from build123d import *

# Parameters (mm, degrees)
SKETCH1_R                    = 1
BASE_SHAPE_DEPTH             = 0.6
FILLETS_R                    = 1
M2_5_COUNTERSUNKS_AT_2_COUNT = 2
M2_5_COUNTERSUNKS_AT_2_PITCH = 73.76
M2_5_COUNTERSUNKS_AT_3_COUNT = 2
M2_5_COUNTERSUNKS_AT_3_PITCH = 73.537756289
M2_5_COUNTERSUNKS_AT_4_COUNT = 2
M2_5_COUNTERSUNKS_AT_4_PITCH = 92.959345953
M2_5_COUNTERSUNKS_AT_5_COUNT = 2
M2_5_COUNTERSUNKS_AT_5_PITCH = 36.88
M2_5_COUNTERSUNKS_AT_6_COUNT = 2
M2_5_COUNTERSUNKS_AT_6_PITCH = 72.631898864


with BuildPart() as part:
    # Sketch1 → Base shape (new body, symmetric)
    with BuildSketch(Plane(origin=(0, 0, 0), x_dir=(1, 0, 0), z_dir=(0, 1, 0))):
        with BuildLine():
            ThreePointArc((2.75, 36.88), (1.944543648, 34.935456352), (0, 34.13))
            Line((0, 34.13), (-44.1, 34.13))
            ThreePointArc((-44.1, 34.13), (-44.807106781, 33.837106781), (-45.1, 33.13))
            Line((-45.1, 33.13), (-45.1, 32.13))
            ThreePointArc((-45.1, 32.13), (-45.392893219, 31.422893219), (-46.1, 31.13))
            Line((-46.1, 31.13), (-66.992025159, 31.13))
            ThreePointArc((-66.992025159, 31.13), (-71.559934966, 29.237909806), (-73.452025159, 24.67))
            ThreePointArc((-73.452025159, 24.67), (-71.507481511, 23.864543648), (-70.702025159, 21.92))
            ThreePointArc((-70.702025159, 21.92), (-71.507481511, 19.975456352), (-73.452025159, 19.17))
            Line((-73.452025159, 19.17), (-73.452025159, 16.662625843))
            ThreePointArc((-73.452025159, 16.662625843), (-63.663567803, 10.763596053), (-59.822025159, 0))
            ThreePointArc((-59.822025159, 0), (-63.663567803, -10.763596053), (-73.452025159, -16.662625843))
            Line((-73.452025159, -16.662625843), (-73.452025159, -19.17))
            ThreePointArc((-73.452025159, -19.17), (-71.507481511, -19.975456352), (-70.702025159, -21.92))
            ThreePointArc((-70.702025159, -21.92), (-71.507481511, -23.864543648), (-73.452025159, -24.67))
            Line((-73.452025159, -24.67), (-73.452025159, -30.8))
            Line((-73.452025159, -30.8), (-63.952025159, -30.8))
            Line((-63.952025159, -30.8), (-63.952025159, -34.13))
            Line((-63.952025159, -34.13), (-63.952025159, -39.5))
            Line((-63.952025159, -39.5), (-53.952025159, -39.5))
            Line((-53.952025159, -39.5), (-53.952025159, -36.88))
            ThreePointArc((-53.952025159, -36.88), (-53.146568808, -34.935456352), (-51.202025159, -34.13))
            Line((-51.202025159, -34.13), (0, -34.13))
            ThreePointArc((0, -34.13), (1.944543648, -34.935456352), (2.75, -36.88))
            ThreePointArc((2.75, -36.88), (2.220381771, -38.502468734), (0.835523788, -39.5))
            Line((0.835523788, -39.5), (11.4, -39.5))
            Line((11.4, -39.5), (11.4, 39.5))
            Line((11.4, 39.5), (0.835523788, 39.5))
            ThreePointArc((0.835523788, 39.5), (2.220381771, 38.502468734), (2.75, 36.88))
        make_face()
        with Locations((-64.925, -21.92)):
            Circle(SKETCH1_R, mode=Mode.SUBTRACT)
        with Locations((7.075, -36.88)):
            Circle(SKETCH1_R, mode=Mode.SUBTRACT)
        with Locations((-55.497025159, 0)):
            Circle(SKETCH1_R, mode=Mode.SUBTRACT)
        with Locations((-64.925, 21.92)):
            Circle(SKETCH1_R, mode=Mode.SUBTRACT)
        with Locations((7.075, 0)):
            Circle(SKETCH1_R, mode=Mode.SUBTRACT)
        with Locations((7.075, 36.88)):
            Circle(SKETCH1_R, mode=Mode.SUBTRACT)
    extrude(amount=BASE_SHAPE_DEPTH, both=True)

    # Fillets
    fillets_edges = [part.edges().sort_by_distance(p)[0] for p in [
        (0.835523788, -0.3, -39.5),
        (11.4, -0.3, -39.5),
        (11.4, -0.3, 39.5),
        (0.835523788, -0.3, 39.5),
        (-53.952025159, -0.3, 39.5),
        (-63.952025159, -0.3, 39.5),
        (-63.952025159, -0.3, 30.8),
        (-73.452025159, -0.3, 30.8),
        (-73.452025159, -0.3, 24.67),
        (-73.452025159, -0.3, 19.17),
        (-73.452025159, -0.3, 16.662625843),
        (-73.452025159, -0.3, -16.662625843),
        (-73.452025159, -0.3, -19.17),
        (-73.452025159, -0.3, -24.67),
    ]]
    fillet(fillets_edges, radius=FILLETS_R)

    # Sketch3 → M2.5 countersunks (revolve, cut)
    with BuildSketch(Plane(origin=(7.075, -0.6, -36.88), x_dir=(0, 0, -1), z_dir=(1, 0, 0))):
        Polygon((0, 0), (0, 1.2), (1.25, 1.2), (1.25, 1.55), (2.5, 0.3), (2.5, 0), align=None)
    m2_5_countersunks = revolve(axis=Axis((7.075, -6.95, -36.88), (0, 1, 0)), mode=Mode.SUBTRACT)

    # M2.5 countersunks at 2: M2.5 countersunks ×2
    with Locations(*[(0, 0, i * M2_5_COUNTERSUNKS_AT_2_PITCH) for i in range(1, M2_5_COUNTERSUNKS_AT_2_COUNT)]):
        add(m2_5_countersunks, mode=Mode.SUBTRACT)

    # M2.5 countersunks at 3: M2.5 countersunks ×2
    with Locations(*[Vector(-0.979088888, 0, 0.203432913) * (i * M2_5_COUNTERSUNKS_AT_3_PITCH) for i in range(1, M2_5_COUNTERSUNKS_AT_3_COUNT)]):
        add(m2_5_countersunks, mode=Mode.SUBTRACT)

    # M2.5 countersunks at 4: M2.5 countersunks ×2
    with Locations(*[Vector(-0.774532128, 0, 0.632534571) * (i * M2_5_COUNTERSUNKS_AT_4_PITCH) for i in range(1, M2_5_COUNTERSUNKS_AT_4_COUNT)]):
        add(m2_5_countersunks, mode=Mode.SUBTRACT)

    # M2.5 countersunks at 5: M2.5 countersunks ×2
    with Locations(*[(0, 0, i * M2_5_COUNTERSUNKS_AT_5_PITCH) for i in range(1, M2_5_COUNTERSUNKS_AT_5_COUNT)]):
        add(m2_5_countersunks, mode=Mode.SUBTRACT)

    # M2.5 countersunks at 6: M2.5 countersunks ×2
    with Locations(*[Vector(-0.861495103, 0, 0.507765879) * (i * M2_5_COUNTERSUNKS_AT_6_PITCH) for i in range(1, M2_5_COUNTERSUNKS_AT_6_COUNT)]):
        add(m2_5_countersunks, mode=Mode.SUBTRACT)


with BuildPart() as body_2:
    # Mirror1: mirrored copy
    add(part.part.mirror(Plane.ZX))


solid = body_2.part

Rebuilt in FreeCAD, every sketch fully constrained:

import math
import FreeCAD as App
import Part
import Sketcher
Q = App.Units.Quantity


def edges_at(feature, points):
    """Names of the edges that pass closest to the given points."""
    edges = feature.Shape.Edges
    near = lambda p: min(range(len(edges)), key=lambda i: edges[i].distToShape(Part.Vertex(*p))[0])
    return sorted({f"Edge{near(p) + 1}" for p in points})

doc = App.newDocument("Part")
body = doc.addObject("PartDesign::Body", "Body")

# Sketch on XZ plane
sketch1 = body.newObject("Sketcher::SketchObject", "Sketch")
sketch1.AttachmentSupport = (doc.getObject("XZ_Plane"), [""])
sketch1.MapMode = "FlatFace"
sketch1.addGeometry(Part.ArcOfCircle(Part.Circle(App.Vector(0, -36.9, 0), App.Vector(0, 0, 1), 2.8), math.radians(0), math.radians(90)), False)
sketch1.addGeometry(Part.LineSegment(App.Vector(0, -34.1, 0), App.Vector(-44.1, -34.1, 0)), False)
sketch1.addGeometry(Part.ArcOfCircle(Part.Circle(App.Vector(-44.1, -33.1, 0), App.Vector(0, 0, 1), 1), math.radians(-180), math.radians(-90)), False)
sketch1.addGeometry(Part.LineSegment(App.Vector(-45.1, -33.1, 0), App.Vector(-45.1, -32.1, 0)), False)
sketch1.addGeometry(Part.ArcOfCircle(Part.Circle(App.Vector(-46.1, -32.1, 0), App.Vector(0, 0, 1), 1), math.radians(0), math.radians(90)), False)
sketch1.addGeometry(Part.LineSegment(App.Vector(-46.1, -31.1, 0), App.Vector(-67, -31.1, 0)), False)
sketch1.addGeometry(Part.ArcOfCircle(Part.Circle(App.Vector(-67, -24.7, 0), App.Vector(0, 0, 1), 6.5), math.radians(180), math.radians(270)), False)
sketch1.addGeometry(Part.ArcOfCircle(Part.Circle(App.Vector(-73.5, -21.9, 0), App.Vector(0, 0, 1), 2.8), math.radians(-90), math.radians(0)), False)
sketch1.addGeometry(Part.ArcOfCircle(Part.Circle(App.Vector(-73.5, -21.9, 0), App.Vector(0, 0, 1), 2.8), math.radians(0), math.radians(90)), False)
sketch1.addGeometry(Part.LineSegment(App.Vector(-73.5, -19.2, 0), App.Vector(-73.5, -16.7, 0)), False)
sketch1.addGeometry(Part.ArcOfCircle(Part.Circle(App.Vector(-76.8, 0, 0), App.Vector(0, 0, 1), 17), math.radians(-79), math.radians(0)), False)
sketch1.addGeometry(Part.ArcOfCircle(Part.Circle(App.Vector(-76.8, 0, 0), App.Vector(0, 0, 1), 17), math.radians(0), math.radians(79)), False)
sketch1.addGeometry(Part.LineSegment(App.Vector(-73.5, 16.7, 0), App.Vector(-73.5, 19.2, 0)), False)
sketch1.addGeometry(Part.ArcOfCircle(Part.Circle(App.Vector(-73.5, 21.9, 0), App.Vector(0, 0, 1), 2.8), math.radians(-90), math.radians(0)), False)
sketch1.addGeometry(Part.ArcOfCircle(Part.Circle(App.Vector(-73.5, 21.9, 0), App.Vector(0, 0, 1), 2.8), math.radians(0), math.radians(90)), False)
sketch1.addGeometry(Part.LineSegment(App.Vector(-73.5, 24.7, 0), App.Vector(-73.5, 30.8, 0)), False)
sketch1.addGeometry(Part.LineSegment(App.Vector(-73.5, 30.8, 0), App.Vector(-64, 30.8, 0)), False)
sketch1.addGeometry(Part.LineSegment(App.Vector(-64, 30.8, 0), App.Vector(-64, 39.5, 0)), False)
sketch1.addGeometry(Part.LineSegment(App.Vector(-64, 39.5, 0), App.Vector(-54, 39.5, 0)), False)
sketch1.addGeometry(Part.LineSegment(App.Vector(-54, 39.5, 0), App.Vector(-54, 36.9, 0)), False)
sketch1.addGeometry(Part.ArcOfCircle(Part.Circle(App.Vector(-51.2, 36.9, 0), App.Vector(0, 0, 1), 2.7), math.radians(180), math.radians(270)), False)
sketch1.addGeometry(Part.LineSegment(App.Vector(-51.2, 34.1, 0), App.Vector(0, 34.1, 0)), False)
sketch1.addGeometry(Part.ArcOfCircle(Part.Circle(App.Vector(0, 36.9, 0), App.Vector(0, 0, 1), 2.8), math.radians(-90), math.radians(0)), False)
sketch1.addGeometry(Part.ArcOfCircle(Part.Circle(App.Vector(0, 36.9, 0), App.Vector(0, 0, 1), 2.7), math.radians(0), math.radians(72)), False)
sketch1.addGeometry(Part.LineSegment(App.Vector(0.8, 39.5, 0), App.Vector(11.4, 39.5, 0)), False)
sketch1.addGeometry(Part.LineSegment(App.Vector(11.4, 39.5, 0), App.Vector(11.4, -39.5, 0)), False)
sketch1.addGeometry(Part.LineSegment(App.Vector(11.4, -39.5, 0), App.Vector(0.8, -39.5, 0)), False)
sketch1.addGeometry(Part.ArcOfCircle(Part.Circle(App.Vector(0, -36.9, 0), App.Vector(0, 0, 1), 2.7), math.radians(-72), math.radians(0)), False)
sketch1.addGeometry(Part.Circle(App.Vector(-64.9, 21.9, 0), App.Vector(0, 0, 1), 1), False)
sketch1.addGeometry(Part.Circle(App.Vector(7.1, 36.9, 0), App.Vector(0, 0, 1), 1), False)
sketch1.addGeometry(Part.Circle(App.Vector(-55.5, 0, 0), App.Vector(0, 0, 1), 1), False)
sketch1.addGeometry(Part.Circle(App.Vector(-64.9, -21.9, 0), App.Vector(0, 0, 1), 1), False)
sketch1.addGeometry(Part.Circle(App.Vector(7.1, 0, 0), App.Vector(0, 0, 1), 1), False)
sketch1.addGeometry(Part.Circle(App.Vector(7.1, -36.9, 0), App.Vector(0, 0, 1), 1), False)
sketch1.addConstraint(Sketcher.Constraint("Tangent", 0, 2, 1, 1))
sketch1.addConstraint(Sketcher.Constraint("Tangent", 1, 2, 2, 2))
sketch1.addConstraint(Sketcher.Constraint("Tangent", 2, 1, 3, 1))
sketch1.addConstraint(Sketcher.Constraint("Tangent", 3, 2, 4, 1))
sketch1.addConstraint(Sketcher.Constraint("Tangent", 4, 2, 5, 1))
sketch1.addConstraint(Sketcher.Constraint("Tangent", 5, 2, 6, 2))
sketch1.addConstraint(Sketcher.Constraint("Coincident", 6, 1, 7, 1))
sketch1.addConstraint(Sketcher.Constraint("Tangent", 7, 2, 8, 1))
sketch1.addConstraint(Sketcher.Constraint("Coincident", 8, 2, 9, 1))
sketch1.addConstraint(Sketcher.Constraint("Coincident", 9, 2, 10, 1))
sketch1.addConstraint(Sketcher.Constraint("Tangent", 10, 2, 11, 1))
sketch1.addConstraint(Sketcher.Constraint("Coincident", 11, 2, 12, 1))
sketch1.addConstraint(Sketcher.Constraint("Coincident", 12, 2, 13, 1))
sketch1.addConstraint(Sketcher.Constraint("Tangent", 13, 2, 14, 1))
sketch1.addConstraint(Sketcher.Constraint("Coincident", 14, 2, 15, 1))
sketch1.addConstraint(Sketcher.Constraint("Coincident", 15, 2, 16, 1))
sketch1.addConstraint(Sketcher.Constraint("Coincident", 16, 2, 17, 1))
sketch1.addConstraint(Sketcher.Constraint("Coincident", 17, 2, 18, 1))
sketch1.addConstraint(Sketcher.Constraint("Coincident", 18, 2, 19, 1))
sketch1.addConstraint(Sketcher.Constraint("Tangent", 19, 2, 20, 1))
sketch1.addConstraint(Sketcher.Constraint("Tangent", 20, 2, 21, 1))
sketch1.addConstraint(Sketcher.Constraint("Tangent", 21, 2, 22, 1))
sketch1.addConstraint(Sketcher.Constraint("Tangent", 22, 2, 23, 1))
sketch1.addConstraint(Sketcher.Constraint("Coincident", 23, 2, 24, 1))
sketch1.addConstraint(Sketcher.Constraint("Coincident", 24, 2, 25, 1))
sketch1.addConstraint(Sketcher.Constraint("Coincident", 25, 2, 26, 1))
sketch1.addConstraint(Sketcher.Constraint("Coincident", 26, 2, 27, 1))
sketch1.addConstraint(Sketcher.Constraint("Tangent", 27, 2, 0, 1))
sketch1.addConstraint(Sketcher.Constraint("Horizontal", 1))
sketch1.addConstraint(Sketcher.Constraint("Vertical", 3))
sketch1.addConstraint(Sketcher.Constraint("Horizontal", 5))
sketch1.addConstraint(Sketcher.Constraint("Vertical", 9))
sketch1.addConstraint(Sketcher.Constraint("Vertical", 12))
sketch1.addConstraint(Sketcher.Constraint("Vertical", 15))
sketch1.addConstraint(Sketcher.Constraint("Horizontal", 16))
sketch1.addConstraint(Sketcher.Constraint("Vertical", 17))
sketch1.addConstraint(Sketcher.Constraint("Horizontal", 18))
sketch1.addConstraint(Sketcher.Constraint("Vertical", 19))
sketch1.addConstraint(Sketcher.Constraint("Horizontal", 21))
sketch1.addConstraint(Sketcher.Constraint("Horizontal", 24))
sketch1.addConstraint(Sketcher.Constraint("Vertical", 25))
sketch1.addConstraint(Sketcher.Constraint("Horizontal", 26))
sketch1.addConstraint(Sketcher.Constraint("Equal", 2, 4))
sketch1.addConstraint(Sketcher.Constraint("Equal", 0, 7))
sketch1.addConstraint(Sketcher.Constraint("Equal", 7, 8))
sketch1.addConstraint(Sketcher.Constraint("Equal", 10, 11))
sketch1.addConstraint(Sketcher.Constraint("Equal", 8, 13))
sketch1.addConstraint(Sketcher.Constraint("Equal", 13, 14))
sketch1.addConstraint(Sketcher.Constraint("Equal", 14, 20))
sketch1.addConstraint(Sketcher.Constraint("Equal", 20, 22))
sketch1.addConstraint(Sketcher.Constraint("Equal", 22, 23))
sketch1.addConstraint(Sketcher.Constraint("Equal", 23, 27))
sketch1.addConstraint(Sketcher.Constraint("Equal", 4, 28))
sketch1.addConstraint(Sketcher.Constraint("Equal", 28, 29))
sketch1.addConstraint(Sketcher.Constraint("Equal", 29, 30))
sketch1.addConstraint(Sketcher.Constraint("Equal", 30, 31))
sketch1.addConstraint(Sketcher.Constraint("Equal", 31, 32))
sketch1.addConstraint(Sketcher.Constraint("Equal", 32, 33))
sketch1.addConstraint(Sketcher.Constraint("Symmetric", 0, 3, 22, 3, -1, 1))
sketch1.addConstraint(Sketcher.Constraint("Symmetric", 7, 3, 13, 3, -1))
sketch1.addConstraint(Sketcher.Constraint("Symmetric", 28, 3, 31, 3, -1))
sketch1.addConstraint(Sketcher.Constraint("Symmetric", 29, 3, 33, 3, -1))
sketch1.addConstraint(Sketcher.Constraint("Symmetric", 9, 2, 11, 2, -1))
sketch1.addConstraint(Sketcher.Constraint("Symmetric", 23, 2, 26, 2, -1))
sketch1.addConstraint(Sketcher.Constraint("PointOnObject", 30, 3, -1))
sketch1.addConstraint(Sketcher.Constraint("PointOnObject", 32, 3, -1))
sketch1.addConstraint(Sketcher.Constraint("PointOnObject", 10, 2, -1))
sketch1.addConstraint(Sketcher.Constraint("Horizontal", 14, 3, 28, 3))
sketch1.addConstraint(Sketcher.Constraint("Horizontal", 23, 3, 29, 3))
sketch1.addConstraint(Sketcher.Constraint("Horizontal", 31, 3, 7, 2))
sketch1.addConstraint(Sketcher.Constraint("Horizontal", 28, 3, 13, 2))
sketch1.addConstraint(Sketcher.Constraint("Horizontal", 19, 2, 22, 2))
sketch1.addConstraint(Sketcher.Constraint("Horizontal", 18, 2, 23, 2))
sketch1.addConstraint(Sketcher.Constraint("Horizontal", 33, 3, 27, 2))
sketch1.addConstraint(Sketcher.Constraint("Vertical", 29, 3, 32, 3))
sketch1.addConstraint(Sketcher.Constraint("Vertical", 14, 3, 6, 1))
sketch1.addConstraint(Sketcher.Constraint("Vertical", 6, 1, 8, 2))
sketch1.addConstraint(Sketcher.Constraint("Vertical", 12, 2, 14, 2))
sketch1.addConstraint(Sketcher.Constraint("Diameter", 28, 2.0))
sketch1.addConstraint(Sketcher.Constraint("Radius", 10, 17.0))
sketch1.addConstraint(Sketcher.Constraint("DistanceX", 18, 1, 18, 2, 10.0))
sketch1.addConstraint(Sketcher.Constraint("DistanceY", 3, 1, 3, 2, 1.0))
sketch1.addConstraint(Sketcher.Constraint("DistanceY", 25, 2, 25, 1, 79.0))
sketch1.addConstraint(Sketcher.Constraint("Radius", 0, 2.75))
sketch1.addConstraint(Sketcher.Constraint("Radius", 6, 6.46))
sketch1.addConstraint(Sketcher.Constraint("DistanceX", 1, 2, 1, 1, 44.1))
sketch1.addConstraint(Sketcher.Constraint("DistanceX", 16, 1, 16, 2, 9.5))
sketch1.addConstraint(Sketcher.Constraint("DistanceY", 17, 1, 17, 2, 8.7))
sketch1.addConstraint(Sketcher.Constraint("DistanceX", 28, 3, 29, 3, 72.0))
sketch1.addConstraint(Sketcher.Constraint("DistanceY", 15, 1, 15, 2, 6.13))
sketch1.addConstraint(Sketcher.Constraint("DistanceY", 19, 2, 19, 1, 2.62))
sketch1.addConstraint(Sketcher.Constraint("DistanceX", -1, 1, 24, 2, 11.4))
sketch1.addConstraint(Sketcher.Constraint("DistanceX", 10, 3, 7, 3, 3.37))
sketch1.addConstraint(Sketcher.Constraint("DistanceX", 28, 3, -1, 1, 64.925))
sketch1.addConstraint(Sketcher.Constraint("DistanceX", 10, 3, 30, 3, 21.325))
sketch1.addConstraint(Sketcher.Constraint("DistanceX", 5, 2, 5, 1, 20.892025))
pad1 = body.newObject("PartDesign::Pad", "Pad")
pad1.Profile = sketch1
pad1.Length = 1.2
pad1.Midplane = True
doc.recompute()

fillet = body.newObject("PartDesign::Fillet", "Fillet")
fillet.Base = (pad1, edges_at(pad1, [
    (0.836, 0, -39.5),
    (11.4, 0, -39.5),
    (11.4, 0, 39.5),
    (0.836, -0.3, 39.5),
    (-53.952, -0.3, 39.5),
    (-63.952, -0.3, 39.5),
    (-63.952, -0.3, 30.8),
    (-73.452, -0.3, 30.8),
    (-73.452, -0.3, 24.67),
    (-73.452, -0.3, 19.17),
    (-73.452, -0.3, 16.663),
    (-73.452, -0.3, -16.663),
    (-73.452, -0.3, -19.17),
    (-73.452, -0.3, -24.67),
]))
fillet.Radius = 1

# Sketch on YZ plane
sketch2 = body.newObject("Sketcher::SketchObject", "Sketch001")
sketch2.AttachmentSupport = (doc.getObject("YZ_Plane"), [""])
sketch2.MapMode = "FlatFace"
sketch2.AttachmentOffset = App.Placement(App.Vector(0, 0, 7.075), App.Rotation())
sketch2.addGeometry(Part.LineSegment(App.Vector(0.6, -36.88, 0), App.Vector(-0.6, -36.88, 0)), False)
sketch2.addGeometry(Part.LineSegment(App.Vector(-0.6, -36.88, 0), App.Vector(-0.6, -39.38, 0)), False)
sketch2.addGeometry(Part.LineSegment(App.Vector(-0.6, -39.38, 0), App.Vector(-0.3, -39.38, 0)), False)
sketch2.addGeometry(Part.LineSegment(App.Vector(-0.3, -39.38, 0), App.Vector(0.95, -38.13, 0)), False)
sketch2.addGeometry(Part.LineSegment(App.Vector(0.95, -38.13, 0), App.Vector(0.6, -38.13, 0)), False)
sketch2.addGeometry(Part.LineSegment(App.Vector(0.6, -38.13, 0), App.Vector(0.6, -36.88, 0)), False)
sketch2.addGeometry(Part.LineSegment(App.Vector(-0.6, -36.88, 0), App.Vector(0.95, -36.88, 0)), True)  # axis
sketch2.addConstraint(Sketcher.Constraint("Coincident", 0, 2, 1, 1))
sketch2.addConstraint(Sketcher.Constraint("Coincident", 1, 2, 2, 1))
sketch2.addConstraint(Sketcher.Constraint("Coincident", 2, 2, 3, 1))
sketch2.addConstraint(Sketcher.Constraint("Coincident", 3, 2, 4, 1))
sketch2.addConstraint(Sketcher.Constraint("Coincident", 4, 2, 5, 1))
sketch2.addConstraint(Sketcher.Constraint("Coincident", 5, 2, 0, 1))
sketch2.addConstraint(Sketcher.Constraint("Horizontal", 0))
sketch2.addConstraint(Sketcher.Constraint("Vertical", 1))
sketch2.addConstraint(Sketcher.Constraint("Horizontal", 2))
sketch2.addConstraint(Sketcher.Constraint("Horizontal", 4))
sketch2.addConstraint(Sketcher.Constraint("Vertical", 5))
sketch2.addConstraint(Sketcher.Constraint("Horizontal", 6))
sketch2.addConstraint(Sketcher.Constraint("Coincident", 6, 1, 0, 2))
sketch2.addConstraint(Sketcher.Constraint("Vertical", 3, 2, 6, 2))
sketch2.addConstraint(Sketcher.Constraint("Angle", 3, Q("45 deg")))
sketch2.addConstraint(Sketcher.Constraint("DistanceX", 0, 2, 0, 1, 1.2))
sketch2.addConstraint(Sketcher.Constraint("DistanceX", 2, 1, 2, 2, 0.3))
sketch2.addConstraint(Sketcher.Constraint("DistanceY", 1, 2, 1, 1, 2.5))
sketch2.addConstraint(Sketcher.Constraint("DistanceX", 4, 2, 4, 1, 0.35))
sketch2.addConstraint(Sketcher.Constraint("DistanceX", 0, 2, -1, 1, 0.6))
sketch2.addConstraint(Sketcher.Constraint("DistanceY", 0, 2, -1, 1, 36.88))
groove = body.newObject("PartDesign::Groove", "Groove")
groove.Profile = sketch2
groove.ReferenceAxis = (sketch2, ["Axis0"])
groove.Angle = 360
doc.recompute()

linearpattern = body.newObject("PartDesign::LinearPattern", "LinearPattern")
linearpattern.Originals = [groove]
linearpattern.Direction = (doc.getObject("Z_Axis"), [""])
linearpattern.Mode = "offset"
linearpattern.Offset = 73.76
linearpattern.Occurrences = 2
body.Tip = linearpattern
doc.recompute()

datumline = body.newObject("PartDesign::Line", "DatumLine")
datumline.Placement = App.Placement(App.Vector(0, 0, 0), App.Rotation(App.Vector(0, 0, 1), App.Vector(-0.979088888, 0, 0.203432913)))
linearpattern2 = body.newObject("PartDesign::LinearPattern", "LinearPattern001")
linearpattern2.Originals = [groove]
linearpattern2.Direction = (datumline, [""])
linearpattern2.Mode = "offset"
linearpattern2.Offset = 73.537756
linearpattern2.Occurrences = 2
body.Tip = linearpattern2
doc.recompute()

datumline2 = body.newObject("PartDesign::Line", "DatumLine001")
datumline2.Placement = App.Placement(App.Vector(0, 0, 0), App.Rotation(App.Vector(0, 0, 1), App.Vector(-0.774532128, 0, 0.632534571)))
linearpattern3 = body.newObject("PartDesign::LinearPattern", "LinearPattern002")
linearpattern3.Originals = [groove]
linearpattern3.Direction = (datumline2, [""])
linearpattern3.Mode = "offset"
linearpattern3.Offset = 92.959346
linearpattern3.Occurrences = 2
body.Tip = linearpattern3
doc.recompute()

linearpattern4 = body.newObject("PartDesign::LinearPattern", "LinearPattern003")
linearpattern4.Originals = [groove]
linearpattern4.Direction = (doc.getObject("Z_Axis"), [""])
linearpattern4.Mode = "offset"
linearpattern4.Offset = 36.88
linearpattern4.Occurrences = 2
body.Tip = linearpattern4
doc.recompute()

datumline3 = body.newObject("PartDesign::Line", "DatumLine002")
datumline3.Placement = App.Placement(App.Vector(0, 0, 0), App.Rotation(App.Vector(0, 0, 1), App.Vector(-0.861495103, 0, 0.507765879)))
linearpattern5 = body.newObject("PartDesign::LinearPattern", "LinearPattern004")
linearpattern5.Originals = [groove]
linearpattern5.Direction = (datumline3, [""])
linearpattern5.Mode = "offset"
linearpattern5.Offset = 72.631899
linearpattern5.Occurrences = 2
body.Tip = linearpattern5
body2 = doc.addObject("PartDesign::Body", "Body001")
doc.recompute()

mirroring = doc.addObject("Part::Mirroring", "Mirroring")
mirroring.Source = body
mirroring.Base = App.Vector(0, 0, 0)
mirroring.Normal = App.Vector(0, 1, 0)
body2.BaseFeature = mirroring
doc.recompute()
body.Visibility = False
mirroring.Visibility = False

doc.recompute()
